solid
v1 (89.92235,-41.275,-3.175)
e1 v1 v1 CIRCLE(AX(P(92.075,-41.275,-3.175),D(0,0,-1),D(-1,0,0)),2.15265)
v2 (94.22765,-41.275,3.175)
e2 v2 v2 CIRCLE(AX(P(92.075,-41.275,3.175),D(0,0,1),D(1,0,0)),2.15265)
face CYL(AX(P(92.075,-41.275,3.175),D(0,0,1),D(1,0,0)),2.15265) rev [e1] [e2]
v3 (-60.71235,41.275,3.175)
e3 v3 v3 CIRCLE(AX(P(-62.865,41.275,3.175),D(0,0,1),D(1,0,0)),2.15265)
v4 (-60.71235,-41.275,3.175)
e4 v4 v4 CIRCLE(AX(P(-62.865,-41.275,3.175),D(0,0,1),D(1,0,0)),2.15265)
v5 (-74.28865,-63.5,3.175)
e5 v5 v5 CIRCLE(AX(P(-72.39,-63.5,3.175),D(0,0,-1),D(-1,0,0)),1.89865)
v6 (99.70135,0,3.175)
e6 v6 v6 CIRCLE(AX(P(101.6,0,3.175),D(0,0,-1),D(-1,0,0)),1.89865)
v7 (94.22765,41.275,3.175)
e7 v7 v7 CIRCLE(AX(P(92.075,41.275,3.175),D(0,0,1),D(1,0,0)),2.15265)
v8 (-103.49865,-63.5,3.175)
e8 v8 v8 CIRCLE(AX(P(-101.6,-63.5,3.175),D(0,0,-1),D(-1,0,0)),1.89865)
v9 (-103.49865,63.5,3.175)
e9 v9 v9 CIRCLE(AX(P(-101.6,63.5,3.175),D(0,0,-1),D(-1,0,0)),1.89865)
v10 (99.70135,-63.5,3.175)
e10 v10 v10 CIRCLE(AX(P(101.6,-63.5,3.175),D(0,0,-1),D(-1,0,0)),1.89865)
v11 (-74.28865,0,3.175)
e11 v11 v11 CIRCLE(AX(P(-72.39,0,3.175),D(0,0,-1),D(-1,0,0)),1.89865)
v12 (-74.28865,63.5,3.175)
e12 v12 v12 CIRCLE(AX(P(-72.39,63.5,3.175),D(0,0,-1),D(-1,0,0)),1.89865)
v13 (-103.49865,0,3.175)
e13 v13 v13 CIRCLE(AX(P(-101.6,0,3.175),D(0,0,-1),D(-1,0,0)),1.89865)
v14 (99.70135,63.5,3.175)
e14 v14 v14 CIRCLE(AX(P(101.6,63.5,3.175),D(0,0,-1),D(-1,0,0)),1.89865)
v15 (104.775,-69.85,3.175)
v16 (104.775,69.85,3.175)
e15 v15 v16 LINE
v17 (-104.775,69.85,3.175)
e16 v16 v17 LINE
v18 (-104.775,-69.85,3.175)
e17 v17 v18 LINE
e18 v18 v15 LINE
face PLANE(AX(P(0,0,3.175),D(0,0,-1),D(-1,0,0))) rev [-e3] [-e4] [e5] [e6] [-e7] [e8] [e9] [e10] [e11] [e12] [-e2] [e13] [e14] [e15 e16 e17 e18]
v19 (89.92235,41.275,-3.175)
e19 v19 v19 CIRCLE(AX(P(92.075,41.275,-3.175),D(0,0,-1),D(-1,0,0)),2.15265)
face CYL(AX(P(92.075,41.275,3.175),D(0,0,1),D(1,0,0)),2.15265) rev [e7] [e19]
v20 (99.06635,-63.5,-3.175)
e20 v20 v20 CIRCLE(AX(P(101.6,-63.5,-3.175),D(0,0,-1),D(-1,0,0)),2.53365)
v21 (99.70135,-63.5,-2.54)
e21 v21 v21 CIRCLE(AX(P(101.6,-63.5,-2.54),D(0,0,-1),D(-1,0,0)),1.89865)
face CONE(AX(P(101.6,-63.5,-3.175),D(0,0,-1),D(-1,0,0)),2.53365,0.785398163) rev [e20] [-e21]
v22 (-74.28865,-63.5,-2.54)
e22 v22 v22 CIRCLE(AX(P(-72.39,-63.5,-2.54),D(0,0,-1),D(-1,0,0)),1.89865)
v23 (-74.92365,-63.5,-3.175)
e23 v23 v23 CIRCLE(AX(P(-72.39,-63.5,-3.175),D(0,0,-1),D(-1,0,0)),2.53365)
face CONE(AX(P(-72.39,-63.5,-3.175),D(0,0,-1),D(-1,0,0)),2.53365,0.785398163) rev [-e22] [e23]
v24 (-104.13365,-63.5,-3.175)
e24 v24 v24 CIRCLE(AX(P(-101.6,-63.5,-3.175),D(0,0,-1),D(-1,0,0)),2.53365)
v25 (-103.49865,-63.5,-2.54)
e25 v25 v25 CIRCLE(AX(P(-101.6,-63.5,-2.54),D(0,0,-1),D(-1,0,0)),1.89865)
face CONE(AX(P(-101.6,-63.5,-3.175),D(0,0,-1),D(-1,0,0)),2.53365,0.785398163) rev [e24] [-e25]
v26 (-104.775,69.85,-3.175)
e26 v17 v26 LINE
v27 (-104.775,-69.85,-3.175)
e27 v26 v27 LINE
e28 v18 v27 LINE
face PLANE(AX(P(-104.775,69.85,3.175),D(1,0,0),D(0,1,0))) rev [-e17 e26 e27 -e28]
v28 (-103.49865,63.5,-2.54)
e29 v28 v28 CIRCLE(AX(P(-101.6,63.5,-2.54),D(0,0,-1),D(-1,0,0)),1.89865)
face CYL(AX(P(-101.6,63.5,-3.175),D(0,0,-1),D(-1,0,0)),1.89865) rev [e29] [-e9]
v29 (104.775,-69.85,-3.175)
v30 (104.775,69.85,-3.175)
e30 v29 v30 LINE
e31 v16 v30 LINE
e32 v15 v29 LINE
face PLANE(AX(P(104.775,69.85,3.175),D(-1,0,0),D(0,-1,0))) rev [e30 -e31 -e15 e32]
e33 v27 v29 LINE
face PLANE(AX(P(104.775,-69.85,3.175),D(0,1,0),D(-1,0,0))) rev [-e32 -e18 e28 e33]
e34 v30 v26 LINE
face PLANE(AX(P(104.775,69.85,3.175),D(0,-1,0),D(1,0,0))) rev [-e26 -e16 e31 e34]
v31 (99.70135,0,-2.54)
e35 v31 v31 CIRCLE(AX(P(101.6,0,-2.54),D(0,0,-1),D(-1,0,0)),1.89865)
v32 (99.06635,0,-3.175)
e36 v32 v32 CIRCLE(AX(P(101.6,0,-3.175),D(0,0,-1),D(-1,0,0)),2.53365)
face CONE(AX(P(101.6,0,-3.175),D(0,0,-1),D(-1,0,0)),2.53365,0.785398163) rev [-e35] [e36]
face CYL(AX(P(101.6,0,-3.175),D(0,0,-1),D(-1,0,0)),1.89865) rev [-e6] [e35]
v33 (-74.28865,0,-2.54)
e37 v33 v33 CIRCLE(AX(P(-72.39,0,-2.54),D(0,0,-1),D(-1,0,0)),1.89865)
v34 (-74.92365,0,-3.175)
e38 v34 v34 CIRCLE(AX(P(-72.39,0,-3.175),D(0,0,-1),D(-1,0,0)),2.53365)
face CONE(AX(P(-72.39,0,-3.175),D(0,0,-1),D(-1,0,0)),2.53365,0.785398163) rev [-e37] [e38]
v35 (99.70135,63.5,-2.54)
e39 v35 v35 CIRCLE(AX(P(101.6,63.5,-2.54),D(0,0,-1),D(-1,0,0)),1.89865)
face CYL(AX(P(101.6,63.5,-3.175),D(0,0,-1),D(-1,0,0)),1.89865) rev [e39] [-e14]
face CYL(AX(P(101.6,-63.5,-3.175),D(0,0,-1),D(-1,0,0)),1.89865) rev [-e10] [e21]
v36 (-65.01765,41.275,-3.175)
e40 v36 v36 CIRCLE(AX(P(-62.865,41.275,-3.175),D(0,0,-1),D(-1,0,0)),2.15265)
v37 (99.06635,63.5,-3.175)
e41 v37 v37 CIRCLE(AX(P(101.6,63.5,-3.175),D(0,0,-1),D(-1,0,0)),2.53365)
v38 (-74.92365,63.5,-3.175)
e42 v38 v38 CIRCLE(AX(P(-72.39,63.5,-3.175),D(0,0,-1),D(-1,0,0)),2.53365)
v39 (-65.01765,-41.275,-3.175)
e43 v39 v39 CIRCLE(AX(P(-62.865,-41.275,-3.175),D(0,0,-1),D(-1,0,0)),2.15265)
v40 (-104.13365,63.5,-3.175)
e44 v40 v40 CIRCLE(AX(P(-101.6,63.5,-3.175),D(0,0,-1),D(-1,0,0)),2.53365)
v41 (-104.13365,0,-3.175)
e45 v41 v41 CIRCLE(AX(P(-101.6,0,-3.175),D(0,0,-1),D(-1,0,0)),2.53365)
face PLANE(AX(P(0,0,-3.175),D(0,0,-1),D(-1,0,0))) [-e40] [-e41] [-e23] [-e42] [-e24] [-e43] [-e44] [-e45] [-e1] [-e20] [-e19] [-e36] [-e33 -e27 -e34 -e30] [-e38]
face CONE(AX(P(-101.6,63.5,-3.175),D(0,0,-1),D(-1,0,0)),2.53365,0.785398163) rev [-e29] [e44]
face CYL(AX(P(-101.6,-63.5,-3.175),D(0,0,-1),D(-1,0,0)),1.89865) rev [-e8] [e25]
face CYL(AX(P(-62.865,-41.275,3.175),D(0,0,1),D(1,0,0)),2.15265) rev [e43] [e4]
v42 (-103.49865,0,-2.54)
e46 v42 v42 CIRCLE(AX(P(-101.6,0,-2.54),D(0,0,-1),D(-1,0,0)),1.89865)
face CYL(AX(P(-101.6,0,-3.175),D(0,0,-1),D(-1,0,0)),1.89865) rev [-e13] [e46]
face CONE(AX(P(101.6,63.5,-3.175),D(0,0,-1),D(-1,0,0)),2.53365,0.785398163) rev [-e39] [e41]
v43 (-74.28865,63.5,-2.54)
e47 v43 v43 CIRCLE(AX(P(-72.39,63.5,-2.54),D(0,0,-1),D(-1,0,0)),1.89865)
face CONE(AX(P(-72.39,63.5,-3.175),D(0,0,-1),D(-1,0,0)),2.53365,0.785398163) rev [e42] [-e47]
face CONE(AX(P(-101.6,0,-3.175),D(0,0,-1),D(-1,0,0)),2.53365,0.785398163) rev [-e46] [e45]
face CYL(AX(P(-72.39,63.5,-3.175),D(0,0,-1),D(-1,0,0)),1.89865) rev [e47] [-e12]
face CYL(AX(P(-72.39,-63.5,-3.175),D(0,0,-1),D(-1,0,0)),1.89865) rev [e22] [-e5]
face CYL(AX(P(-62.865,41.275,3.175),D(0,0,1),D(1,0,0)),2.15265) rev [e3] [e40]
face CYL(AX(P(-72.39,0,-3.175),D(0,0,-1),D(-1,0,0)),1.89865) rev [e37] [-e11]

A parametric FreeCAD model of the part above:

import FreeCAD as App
import Part
import Sketcher
from FreeCAD import Vector
Q = App.Units.Quantity

doc = App.newDocument("Part")
body = doc.addObject("PartDesign::Body", "Body")

# Sketch on XY plane
sketch1 = doc.addObject("Sketcher::SketchObject", "Sketch")
body.addObject(sketch1)
sketch1.AttachmentSupport = (doc.XY_Plane, [""])
sketch1.MapMode = "FlatFace"
sketch1.addGeometry(Part.LineSegment(Vector(-104.775, 69.85, 0), Vector(-104.775, -69.85, 0)), False)
sketch1.addGeometry(Part.LineSegment(Vector(-104.775, -69.85, 0), Vector(104.775, -69.85, 0)), False)
sketch1.addGeometry(Part.LineSegment(Vector(104.775, -69.85, 0), Vector(104.775, 69.85, 0)), False)
sketch1.addGeometry(Part.LineSegment(Vector(104.775, 69.85, 0), Vector(-104.775, 69.85, 0)), False)
sketch1.addConstraint(Sketcher.Constraint("Coincident", 0, 2, 1, 1))
sketch1.addConstraint(Sketcher.Constraint("Coincident", 1, 2, 2, 1))
sketch1.addConstraint(Sketcher.Constraint("Coincident", 2, 2, 3, 1))
sketch1.addConstraint(Sketcher.Constraint("Coincident", 3, 2, 0, 1))
sketch1.addConstraint(Sketcher.Constraint("Vertical", 0))
sketch1.addConstraint(Sketcher.Constraint("Horizontal", 1))
sketch1.addConstraint(Sketcher.Constraint("Vertical", 2))
sketch1.addConstraint(Sketcher.Constraint("Horizontal", 3))
sketch1.addConstraint(Sketcher.Constraint("Symmetric", 0, 2, 2, 2, -1, 1))
sketch1.addConstraint(Sketcher.Constraint("DistanceY", 0, 2, 0, 1, Q("5.5 in")))
sketch1.addConstraint(Sketcher.Constraint("DistanceX", 1, 1, 1, 2, Q("8.25 in")))
pad1 = doc.addObject("PartDesign::Pad", "Pad")
body.addObject(pad1)
pad1.Profile = sketch1
pad1.Length = Q("0.25 in")
pad1.Midplane = True

# Sketch on XY plane
sketch2 = doc.addObject("Sketcher::SketchObject", "Sketch001")
body.addObject(sketch2)
sketch2.AttachmentSupport = (doc.XY_Plane, [""])
sketch2.MapMode = "FlatFace"
sketch2.AttachmentOffset = App.Placement(Vector(0, 0, 0.125 * 25.4), App.Rotation())
sketch2.addGeometry(Part.Circle(Vector(-62.865, 41.275, 0), Vector(0, 0, 1), 2.15265), False)
sketch2.addGeometry(Part.Circle(Vector(92.075, 41.275, 0), Vector(0, 0, 1), 2.15265), False)
sketch2.addGeometry(Part.Circle(Vector(92.075, -41.275, 0), Vector(0, 0, 1), 2.15265), False)
sketch2.addGeometry(Part.Circle(Vector(-62.865, -41.275, 0), Vector(0, 0, 1), 2.15265), False)
sketch2.addConstraint(Sketcher.Constraint("Equal", 0, 1))
sketch2.addConstraint(Sketcher.Constraint("Equal", 1, 2))
sketch2.addConstraint(Sketcher.Constraint("Equal", 2, 3))
sketch2.addConstraint(Sketcher.Constraint("Symmetric", 1, 3, 2, 3, -1))
sketch2.addConstraint(Sketcher.Constraint("Symmetric", 0, 3, 3, 3, -1))
sketch2.addConstraint(Sketcher.Constraint("Horizontal", 0, 3, 1, 3))
sketch2.addConstraint(Sketcher.Constraint("Diameter", 0, Q("0.1695 in")))
sketch2.addConstraint(Sketcher.Constraint("DistanceX", 0, 3, 1, 3, Q("6.1 in")))
sketch2.addConstraint(Sketcher.Constraint("DistanceY", 2, 3, 1, 3, Q("3.25 in")))
sketch2.addConstraint(Sketcher.Constraint("DistanceX", 0, 3, -1, 1, Q("2.475 in")))
doc.recompute()
hole = doc.addObject("PartDesign::Hole", "Hole")
body.addObject(hole)
hole.Profile = sketch2
hole.ThreadType = "None"
hole.Diameter = Q("0.1695 in")
hole.DepthType = "Dimension"
hole.Depth = Q("0.38 in")
hole.DrillPoint = "Angled"
hole.DrillPointAngle = 118

# Sketch on XY plane
sketch3 = doc.addObject("Sketcher::SketchObject", "Sketch002")
body.addObject(sketch3)
sketch3.AttachmentSupport = (doc.XY_Plane, [""])
sketch3.MapMode = "FlatFace"
sketch3.AttachmentOffset = App.Placement(Vector(0, 0, -0.125 * 25.4), App.Rotation())
sketch3.addGeometry(Part.Circle(Vector(101.6, 63.5, 0), Vector(0, 0, 1), 1.89865), False)
sketch3.addGeometry(Part.Circle(Vector(101.6, 0, 0), Vector(0, 0, 1), 1.89865), False)
sketch3.addGeometry(Part.Circle(Vector(101.6, -63.5, 0), Vector(0, 0, 1), 1.89865), False)
sketch3.addGeometry(Part.Circle(Vector(-72.39, 63.5, 0), Vector(0, 0, 1), 1.89865), False)
sketch3.addGeometry(Part.Circle(Vector(-72.39, 0, 0), Vector(0, 0, 1), 1.89865), False)
sketch3.addGeometry(Part.Circle(Vector(-72.39, -63.5, 0), Vector(0, 0, 1), 1.89865), False)
sketch3.addGeometry(Part.Circle(Vector(-101.6, -63.5, 0), Vector(0, 0, 1), 1.89865), False)
sketch3.addGeometry(Part.Circle(Vector(-101.6, 0, 0), Vector(0, 0, 1), 1.89865), False)
sketch3.addGeometry(Part.Circle(Vector(-101.6, 63.5, 0), Vector(0, 0, 1), 1.89865), False)
sketch3.addConstraint(Sketcher.Constraint("Equal", 0, 1))
sketch3.addConstraint(Sketcher.Constraint("Equal", 1, 2))
sketch3.addConstraint(Sketcher.Constraint("Equal", 2, 3))
sketch3.addConstraint(Sketcher.Constraint("Equal", 3, 4))
sketch3.addConstraint(Sketcher.Constraint("Equal", 4, 5))
sketch3.addConstraint(Sketcher.Constraint("Equal", 5, 6))
sketch3.addConstraint(Sketcher.Constraint("Equal", 6, 7))
sketch3.addConstraint(Sketcher.Constraint("Equal", 7, 8))
sketch3.addConstraint(Sketcher.Constraint("Symmetric", 0, 3, 6, 3, -1, 1))
sketch3.addConstraint(Sketcher.Constraint("Symmetric", 1, 3, 7, 3, -1, 1))
sketch3.addConstraint(Sketcher.Constraint("Symmetric", 2, 3, 8, 3, -1, 1))
sketch3.addConstraint(Sketcher.Constraint("Symmetric", 2, 3, 6, 3, -2))
sketch3.addConstraint(Sketcher.Constraint("Symmetric", 3, 3, 5, 3, -1))
sketch3.addConstraint(Sketcher.Constraint("PointOnObject", 1, 3, -1))
sketch3.addConstraint(Sketcher.Constraint("PointOnObject", 4, 3, -1))
sketch3.addConstraint(Sketcher.Constraint("Horizontal", 0, 3, 3, 3))
sketch3.addConstraint(Sketcher.Constraint("Vertical", 0, 3, 1, 3))
sketch3.addConstraint(Sketcher.Constraint("Vertical", 3, 3, 4, 3))
sketch3.addConstraint(Sketcher.Constraint("DistanceX", -1, 1, 0, 3, Q("4 in")))
sketch3.addConstraint(Sketcher.Constraint("DistanceY", 2, 3, 0, 3, Q("5 in")))
sketch3.addConstraint(Sketcher.Constraint("Diameter", 0, Q("0.1495 in")))
sketch3.addConstraint(Sketcher.Constraint("DistanceX", 3, 3, -1, 1, Q("2.85 in")))
doc.recompute()
hole2 = doc.addObject("PartDesign::Hole", "Hole001")
body.addObject(hole2)
hole2.Profile = sketch3
hole2.ThreadType = "None"
hole2.Diameter = Q("0.1495 in")
hole2.DepthType = "ThroughAll"
hole2.HoleCutType = "Countersink"
hole2.HoleCutDiameter = Q("0.1995 in")
hole2.HoleCutCountersinkAngle = 90
hole2.Reversed = True

doc.recompute()
